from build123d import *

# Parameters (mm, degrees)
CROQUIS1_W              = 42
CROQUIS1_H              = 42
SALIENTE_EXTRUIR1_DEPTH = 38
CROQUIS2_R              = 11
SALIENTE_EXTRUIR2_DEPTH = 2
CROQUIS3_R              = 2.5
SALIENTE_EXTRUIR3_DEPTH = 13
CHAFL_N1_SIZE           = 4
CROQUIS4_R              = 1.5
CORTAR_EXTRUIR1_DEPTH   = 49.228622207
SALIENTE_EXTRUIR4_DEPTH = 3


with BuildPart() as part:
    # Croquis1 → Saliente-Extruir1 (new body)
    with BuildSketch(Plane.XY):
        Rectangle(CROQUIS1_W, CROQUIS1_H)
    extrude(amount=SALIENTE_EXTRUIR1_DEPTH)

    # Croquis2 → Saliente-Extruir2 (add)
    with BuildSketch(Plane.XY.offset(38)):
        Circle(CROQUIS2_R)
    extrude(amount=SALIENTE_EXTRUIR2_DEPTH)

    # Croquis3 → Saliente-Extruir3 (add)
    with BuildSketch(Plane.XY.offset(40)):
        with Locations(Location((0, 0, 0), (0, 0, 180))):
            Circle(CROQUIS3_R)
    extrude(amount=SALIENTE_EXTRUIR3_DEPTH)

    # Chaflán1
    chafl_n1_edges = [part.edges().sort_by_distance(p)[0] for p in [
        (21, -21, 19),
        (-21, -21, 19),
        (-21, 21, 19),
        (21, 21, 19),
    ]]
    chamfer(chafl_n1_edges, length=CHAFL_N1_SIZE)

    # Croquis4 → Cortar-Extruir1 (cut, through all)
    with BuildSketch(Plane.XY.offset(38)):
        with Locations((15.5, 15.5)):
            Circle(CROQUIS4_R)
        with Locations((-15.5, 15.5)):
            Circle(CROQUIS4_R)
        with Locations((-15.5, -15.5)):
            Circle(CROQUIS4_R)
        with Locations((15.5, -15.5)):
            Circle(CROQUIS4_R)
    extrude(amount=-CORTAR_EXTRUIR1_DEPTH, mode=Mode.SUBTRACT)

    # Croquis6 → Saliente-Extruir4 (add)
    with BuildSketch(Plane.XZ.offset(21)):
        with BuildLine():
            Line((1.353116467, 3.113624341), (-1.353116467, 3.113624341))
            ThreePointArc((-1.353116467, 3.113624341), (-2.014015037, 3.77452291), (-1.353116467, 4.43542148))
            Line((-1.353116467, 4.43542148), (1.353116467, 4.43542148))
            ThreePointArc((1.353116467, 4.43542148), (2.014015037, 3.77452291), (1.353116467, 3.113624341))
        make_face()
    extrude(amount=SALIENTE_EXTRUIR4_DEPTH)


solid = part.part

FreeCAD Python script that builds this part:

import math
import FreeCAD as App
import Part
import Sketcher

V = App.Vector


def edges_at(feature, points):
    """Names of the edges that pass closest to the given points."""
    edges = feature.Shape.Edges
    near = lambda p: min(range(len(edges)), key=lambda i: edges[i].distToShape(Part.Vertex(*p))[0])
    return sorted({f"Edge{near(p) + 1}" for p in points})


def add_polygon(sketch, points):
    """Adds a closed chain of lines whose ends are joined by coincident constraints."""
    first, n = sketch.GeometryCount, len(points)
    for a, b in zip(points, points[1:] + points[:1]):
        sketch.addGeometry(Part.LineSegment(App.Vector(*a, 0), App.Vector(*b, 0)), False)
    for i in range(n):
        sketch.addConstraint(Sketcher.Constraint("Coincident", first + i, 2, first + (i + 1) % n, 1))

doc = App.newDocument("Part")
body = doc.addObject("PartDesign::Body", "Body")

# Sketch on XY plane
sketch1 = body.newObject("Sketcher::SketchObject", "Sketch")
sketch1.AttachmentSupport = (doc.getObject("XY_Plane"), [""])
sketch1.MapMode = "FlatFace"
add_polygon(sketch1, [(-21, 21), (-21, -21), (21, -21), (21, 21)])  # lines 0-3
sketch1.addConstraint([
    Sketcher.Constraint("Vertical", 0),
    Sketcher.Constraint("Horizontal", 1),
    Sketcher.Constraint("Vertical", 2),
    Sketcher.Constraint("Horizontal", 3),
    Sketcher.Constraint("Symmetric", 0, 2, 2, 2, -1, 1),
    Sketcher.Constraint("Equal", 3, 0),
    Sketcher.Constraint("DistanceX", 1, 1, 1, 2, 42.0),
])
pad1 = body.newObject("PartDesign::Pad", "Pad")
pad1.Profile = sketch1
pad1.Length = 38

# Sketch on XY plane
sketch2 = body.newObject("Sketcher::SketchObject", "Sketch001")
sketch2.AttachmentSupport = (doc.getObject("XY_Plane"), [""])
sketch2.MapMode = "FlatFace"
sketch2.AttachmentOffset = App.Placement(V(0, 0, 38), App.Rotation())
sketch2.addGeometry(Part.Circle(V(0, 0, 0), V(0, 0, 1), 11), False)
sketch2.addConstraint([
    Sketcher.Constraint("Coincident", 0, 3, -1, 1),
    Sketcher.Constraint("Diameter", 0, 22.0),
])
pad2 = body.newObject("PartDesign::Pad", "Pad001")
pad2.Profile = sketch2
pad2.Length = 2

# Sketch on XY plane
sketch3 = body.newObject("Sketcher::SketchObject", "Sketch002")
sketch3.AttachmentSupport = (doc.getObject("XY_Plane"), [""])
sketch3.MapMode = "FlatFace"
sketch3.AttachmentOffset = App.Placement(V(0, 0, 40), App.Rotation())
sketch3.addGeometry(Part.Circle(V(0, 0, 0), V(0, 0, 1), 2.5), False)
sketch3.addConstraint([
    Sketcher.Constraint("Coincident", 0, 3, -1, 1),
    Sketcher.Constraint("Diameter", 0, 5.0),
])
pad3 = body.newObject("PartDesign::Pad", "Pad002")
pad3.Profile = sketch3
pad3.Length = 13
doc.recompute()

chamfer = body.newObject("PartDesign::Chamfer", "Chamfer")
chamfer.Base = (pad3, edges_at(pad3, [
    (21, -21, 19),
    (-21, -21, 19),
    (-21, 21, 19),
    (21, 21, 19),
]))
chamfer.Size = 4

# Sketch on XY plane
sketch4 = body.newObject("Sketcher::SketchObject", "Sketch003")
sketch4.AttachmentSupport = (doc.getObject("XY_Plane"), [""])
sketch4.MapMode = "FlatFace"
sketch4.AttachmentOffset = App.Placement(V(0, 0, 38), App.Rotation())
sketch4.addGeometry([
    Part.Circle(V(15.5, 15.5, 0), V(0, 0, 1), 1.5),
    Part.Circle(V(-15.5, 15.5, 0), V(0, 0, 1), 1.5),
    Part.Circle(V(-15.5, -15.5, 0), V(0, 0, 1), 1.5),
    Part.Circle(V(15.5, -15.5, 0), V(0, 0, 1), 1.5),
], False)
sketch4.addConstraint([
    Sketcher.Constraint("Equal", 0, 1),
    Sketcher.Constraint("Equal", 1, 2),
    Sketcher.Constraint("Equal", 2, 3),
    Sketcher.Constraint("Symmetric", 0, 3, 2, 3, -1, 1),
    Sketcher.Constraint("Symmetric", 1, 3, 3, 3, -1, 1),
    Sketcher.Constraint("Symmetric", 0, 3, 1, 3, -2),
    Sketcher.Constraint("Diameter", 0, 3.0),
    Sketcher.Constraint("DistanceX", 1, 3, 0, 3, 31.0),
    Sketcher.Constraint("DistanceY", 2, 3, 1, 3, 31.0),
])
pocket1 = body.newObject("PartDesign::Pocket", "Pocket")
pocket1.Profile = sketch4
pocket1.Type = "ThroughAll"

# Sketch on XZ plane
sketch5 = body.newObject("Sketcher::SketchObject", "Sketch004")
sketch5.AttachmentSupport = (doc.getObject("XZ_Plane"), [""])
sketch5.MapMode = "FlatFace"
sketch5.AttachmentOffset = App.Placement(V(0, 0, 21), App.Rotation())
sketch5.addGeometry([
    Part.LineSegment(V(-1.353116, 3.113624, 0), V(1.353116, 3.113624, 0)),
    Part.ArcOfCircle(Part.Circle(V(1.353116, 3.774523, 0), V(0, 0, 1), 0.660899), math.radians(-90), math.radians(90)),
    Part.LineSegment(V(1.353116, 4.435421, 0), V(-1.353116, 4.435421, 0)),
    Part.ArcOfCircle(Part.Circle(V(-1.353116, 3.774523, 0), V(0, 0, 1), 0.660899), math.radians(90), math.radians(270)),
], False)
sketch5.addConstraint([
    Sketcher.Constraint("Tangent", 0, 2, 1, 1),
    Sketcher.Constraint("Tangent", 1, 2, 2, 1),
    Sketcher.Constraint("Tangent", 2, 2, 3, 1),
    Sketcher.Constraint("Tangent", 3, 2, 0, 1),
    Sketcher.Constraint("Horizontal", 0),
    Sketcher.Constraint("Horizontal", 2),
    Sketcher.Constraint("Radius", 1, 0.660899),
    Sketcher.Constraint("DistanceX", 0, 1, 0, 2, 2.706233),
    Sketcher.Constraint("DistanceY", -1, 1, 1, 2, 4.435421),
    Sketcher.Constraint("DistanceX", -1, 1, 1, 3, 1.353116),
])
pad4 = body.newObject("PartDesign::Pad", "Pad003")
pad4.Profile = sketch5
pad4.Length = 3

doc.recompute()
